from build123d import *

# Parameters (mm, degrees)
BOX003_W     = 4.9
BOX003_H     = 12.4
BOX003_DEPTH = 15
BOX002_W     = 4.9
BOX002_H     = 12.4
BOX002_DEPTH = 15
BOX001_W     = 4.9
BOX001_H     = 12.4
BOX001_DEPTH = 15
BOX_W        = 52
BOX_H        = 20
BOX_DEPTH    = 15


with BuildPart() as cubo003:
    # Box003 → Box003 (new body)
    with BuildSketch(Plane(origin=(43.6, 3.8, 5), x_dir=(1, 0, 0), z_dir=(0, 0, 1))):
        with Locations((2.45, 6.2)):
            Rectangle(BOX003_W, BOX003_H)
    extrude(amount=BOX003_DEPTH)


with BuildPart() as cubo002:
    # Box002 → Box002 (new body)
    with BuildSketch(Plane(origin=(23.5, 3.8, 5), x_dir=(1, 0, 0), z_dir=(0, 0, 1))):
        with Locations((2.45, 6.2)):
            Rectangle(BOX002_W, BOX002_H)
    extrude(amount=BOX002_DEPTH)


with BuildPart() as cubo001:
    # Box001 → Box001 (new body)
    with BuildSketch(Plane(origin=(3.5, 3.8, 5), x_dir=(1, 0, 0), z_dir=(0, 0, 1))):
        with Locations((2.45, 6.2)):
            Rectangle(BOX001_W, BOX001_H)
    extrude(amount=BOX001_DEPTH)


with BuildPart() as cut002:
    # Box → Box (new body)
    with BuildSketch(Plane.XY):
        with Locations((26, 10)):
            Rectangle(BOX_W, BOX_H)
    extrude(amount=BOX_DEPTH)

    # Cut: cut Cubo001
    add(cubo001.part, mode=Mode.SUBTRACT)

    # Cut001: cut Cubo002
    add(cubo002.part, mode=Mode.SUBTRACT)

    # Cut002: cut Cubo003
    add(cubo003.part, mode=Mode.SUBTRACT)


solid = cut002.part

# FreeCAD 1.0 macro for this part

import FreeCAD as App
import Part
import Sketcher

V = App.Vector


def add_polygon(sketch, points):
    """Adds a closed chain of lines whose ends are joined by coincident constraints."""
    first, n = sketch.GeometryCount, len(points)
    for a, b in zip(points, points[1:] + points[:1]):
        sketch.addGeometry(Part.LineSegment(App.Vector(*a, 0), App.Vector(*b, 0)), False)
    for i in range(n):
        sketch.addConstraint(Sketcher.Constraint("Coincident", first + i, 2, first + (i + 1) % n, 1))

doc = App.newDocument("Part")
body = doc.addObject("PartDesign::Body", "Body")

sketch1 = body.newObject("Sketcher::SketchObject", "Sketch")
sketch1.AttachmentSupport = (doc.getObject("XY_Plane"), [""])
sketch1.MapMode = "FlatFace"
sketch1.AttachmentOffset = App.Placement(V(0, 0, 5), App.Rotation())
add_polygon(sketch1, [(43.6, 16.2), (43.6, 3.8), (48.5, 3.8), (48.5, 16.2)])
sketch1.addConstraint(Sketcher.Constraint("Vertical", 0))
sketch1.addConstraint(Sketcher.Constraint("Horizontal", 1))
sketch1.addConstraint(Sketcher.Constraint("Vertical", 2))
sketch1.addConstraint(Sketcher.Constraint("Horizontal", 3))
sketch1.addConstraint(Sketcher.Constraint("DistanceX", 1, 1, 1, 2, 4.9))
sketch1.addConstraint(Sketcher.Constraint("DistanceY", 0, 2, 0, 1, 12.4))
sketch1.addConstraint(Sketcher.Constraint("DistanceX", -1, 1, 0, 2, 43.6))
sketch1.addConstraint(Sketcher.Constraint("DistanceY", -1, 1, 0, 2, 3.8))
pad1 = body.newObject("PartDesign::Pad", "Pad")
pad1.Profile = sketch1
pad1.Length = 15
body2 = doc.addObject("PartDesign::Body", "Body001")

sketch2 = body2.newObject("Sketcher::SketchObject", "Sketch001")
sketch2.AttachmentSupport = (doc.getObject("XY_Plane001"), [""])
sketch2.MapMode = "FlatFace"
sketch2.AttachmentOffset = App.Placement(V(0, 0, 5), App.Rotation())
add_polygon(sketch2, [(23.5, 16.2), (23.5, 3.8), (28.4, 3.8), (28.4, 16.2)])
sketch2.addConstraint(Sketcher.Constraint("Vertical", 0))
sketch2.addConstraint(Sketcher.Constraint("Horizontal", 1))
sketch2.addConstraint(Sketcher.Constraint("Vertical", 2))
sketch2.addConstraint(Sketcher.Constraint("Horizontal", 3))
sketch2.addConstraint(Sketcher.Constraint("DistanceX", 1, 1, 1, 2, 4.9))
sketch2.addConstraint(Sketcher.Constraint("DistanceY", 0, 2, 0, 1, 12.4))
sketch2.addConstraint(Sketcher.Constraint("DistanceX", -1, 1, 0, 2, 23.5))
sketch2.addConstraint(Sketcher.Constraint("DistanceY", -1, 1, 0, 2, 3.8))
pad2 = body2.newObject("PartDesign::Pad", "Pad001")
pad2.Profile = sketch2
pad2.Length = 15
body3 = doc.addObject("PartDesign::Body", "Body002")

sketch3 = body3.newObject("Sketcher::SketchObject", "Sketch002")
sketch3.AttachmentSupport = (doc.getObject("XY_Plane002"), [""])
sketch3.MapMode = "FlatFace"
sketch3.AttachmentOffset = App.Placement(V(0, 0, 5), App.Rotation())
add_polygon(sketch3, [(3.5, 16.2), (3.5, 3.8), (8.4, 3.8), (8.4, 16.2)])
sketch3.addConstraint(Sketcher.Constraint("Vertical", 0))
sketch3.addConstraint(Sketcher.Constraint("Horizontal", 1))
sketch3.addConstraint(Sketcher.Constraint("Vertical", 2))
sketch3.addConstraint(Sketcher.Constraint("Horizontal", 3))
sketch3.addConstraint(Sketcher.Constraint("DistanceX", 1, 1, 1, 2, 4.9))
sketch3.addConstraint(Sketcher.Constraint("DistanceY", 0, 2, 0, 1, 12.4))
sketch3.addConstraint(Sketcher.Constraint("DistanceX", -1, 1, 0, 2, 3.5))
sketch3.addConstraint(Sketcher.Constraint("DistanceY", -1, 1, 0, 2, 3.8))
pad3 = body3.newObject("PartDesign::Pad", "Pad002")
pad3.Profile = sketch3
pad3.Length = 15
body4 = doc.addObject("PartDesign::Body", "Body003")

sketch4 = body4.newObject("Sketcher::SketchObject", "Sketch003")
sketch4.AttachmentSupport = (doc.getObject("XY_Plane003"), [""])
sketch4.MapMode = "FlatFace"
add_polygon(sketch4, [(0, 20), (0, 0), (52, 0), (52, 20)])
sketch4.addConstraint(Sketcher.Constraint("Vertical", 0))
sketch4.addConstraint(Sketcher.Constraint("Horizontal", 1))
sketch4.addConstraint(Sketcher.Constraint("Vertical", 2))
sketch4.addConstraint(Sketcher.Constraint("Horizontal", 3))
sketch4.addConstraint(Sketcher.Constraint("Coincident", 0, 2, -1, 1))
sketch4.addConstraint(Sketcher.Constraint("DistanceX", 1, 1, 1, 2, 52.0))
sketch4.addConstraint(Sketcher.Constraint("DistanceY", 0, 2, 0, 1, 20.0))
pad4 = body4.newObject("PartDesign::Pad", "Pad003")
pad4.Profile = sketch4
pad4.Length = 15
doc.recompute()

boolean = body4.newObject("PartDesign::Boolean", "Boolean")
boolean.Type = "Cut"
boolean.addObjects([body3])
doc.recompute()

boolean2 = body4.newObject("PartDesign::Boolean", "Boolean001")
boolean2.Type = "Cut"
boolean2.addObjects([body2])
doc.recompute()

boolean3 = body4.newObject("PartDesign::Boolean", "Boolean002")
boolean3.Type = "Cut"
boolean3.addObjects([body])

doc.recompute()
